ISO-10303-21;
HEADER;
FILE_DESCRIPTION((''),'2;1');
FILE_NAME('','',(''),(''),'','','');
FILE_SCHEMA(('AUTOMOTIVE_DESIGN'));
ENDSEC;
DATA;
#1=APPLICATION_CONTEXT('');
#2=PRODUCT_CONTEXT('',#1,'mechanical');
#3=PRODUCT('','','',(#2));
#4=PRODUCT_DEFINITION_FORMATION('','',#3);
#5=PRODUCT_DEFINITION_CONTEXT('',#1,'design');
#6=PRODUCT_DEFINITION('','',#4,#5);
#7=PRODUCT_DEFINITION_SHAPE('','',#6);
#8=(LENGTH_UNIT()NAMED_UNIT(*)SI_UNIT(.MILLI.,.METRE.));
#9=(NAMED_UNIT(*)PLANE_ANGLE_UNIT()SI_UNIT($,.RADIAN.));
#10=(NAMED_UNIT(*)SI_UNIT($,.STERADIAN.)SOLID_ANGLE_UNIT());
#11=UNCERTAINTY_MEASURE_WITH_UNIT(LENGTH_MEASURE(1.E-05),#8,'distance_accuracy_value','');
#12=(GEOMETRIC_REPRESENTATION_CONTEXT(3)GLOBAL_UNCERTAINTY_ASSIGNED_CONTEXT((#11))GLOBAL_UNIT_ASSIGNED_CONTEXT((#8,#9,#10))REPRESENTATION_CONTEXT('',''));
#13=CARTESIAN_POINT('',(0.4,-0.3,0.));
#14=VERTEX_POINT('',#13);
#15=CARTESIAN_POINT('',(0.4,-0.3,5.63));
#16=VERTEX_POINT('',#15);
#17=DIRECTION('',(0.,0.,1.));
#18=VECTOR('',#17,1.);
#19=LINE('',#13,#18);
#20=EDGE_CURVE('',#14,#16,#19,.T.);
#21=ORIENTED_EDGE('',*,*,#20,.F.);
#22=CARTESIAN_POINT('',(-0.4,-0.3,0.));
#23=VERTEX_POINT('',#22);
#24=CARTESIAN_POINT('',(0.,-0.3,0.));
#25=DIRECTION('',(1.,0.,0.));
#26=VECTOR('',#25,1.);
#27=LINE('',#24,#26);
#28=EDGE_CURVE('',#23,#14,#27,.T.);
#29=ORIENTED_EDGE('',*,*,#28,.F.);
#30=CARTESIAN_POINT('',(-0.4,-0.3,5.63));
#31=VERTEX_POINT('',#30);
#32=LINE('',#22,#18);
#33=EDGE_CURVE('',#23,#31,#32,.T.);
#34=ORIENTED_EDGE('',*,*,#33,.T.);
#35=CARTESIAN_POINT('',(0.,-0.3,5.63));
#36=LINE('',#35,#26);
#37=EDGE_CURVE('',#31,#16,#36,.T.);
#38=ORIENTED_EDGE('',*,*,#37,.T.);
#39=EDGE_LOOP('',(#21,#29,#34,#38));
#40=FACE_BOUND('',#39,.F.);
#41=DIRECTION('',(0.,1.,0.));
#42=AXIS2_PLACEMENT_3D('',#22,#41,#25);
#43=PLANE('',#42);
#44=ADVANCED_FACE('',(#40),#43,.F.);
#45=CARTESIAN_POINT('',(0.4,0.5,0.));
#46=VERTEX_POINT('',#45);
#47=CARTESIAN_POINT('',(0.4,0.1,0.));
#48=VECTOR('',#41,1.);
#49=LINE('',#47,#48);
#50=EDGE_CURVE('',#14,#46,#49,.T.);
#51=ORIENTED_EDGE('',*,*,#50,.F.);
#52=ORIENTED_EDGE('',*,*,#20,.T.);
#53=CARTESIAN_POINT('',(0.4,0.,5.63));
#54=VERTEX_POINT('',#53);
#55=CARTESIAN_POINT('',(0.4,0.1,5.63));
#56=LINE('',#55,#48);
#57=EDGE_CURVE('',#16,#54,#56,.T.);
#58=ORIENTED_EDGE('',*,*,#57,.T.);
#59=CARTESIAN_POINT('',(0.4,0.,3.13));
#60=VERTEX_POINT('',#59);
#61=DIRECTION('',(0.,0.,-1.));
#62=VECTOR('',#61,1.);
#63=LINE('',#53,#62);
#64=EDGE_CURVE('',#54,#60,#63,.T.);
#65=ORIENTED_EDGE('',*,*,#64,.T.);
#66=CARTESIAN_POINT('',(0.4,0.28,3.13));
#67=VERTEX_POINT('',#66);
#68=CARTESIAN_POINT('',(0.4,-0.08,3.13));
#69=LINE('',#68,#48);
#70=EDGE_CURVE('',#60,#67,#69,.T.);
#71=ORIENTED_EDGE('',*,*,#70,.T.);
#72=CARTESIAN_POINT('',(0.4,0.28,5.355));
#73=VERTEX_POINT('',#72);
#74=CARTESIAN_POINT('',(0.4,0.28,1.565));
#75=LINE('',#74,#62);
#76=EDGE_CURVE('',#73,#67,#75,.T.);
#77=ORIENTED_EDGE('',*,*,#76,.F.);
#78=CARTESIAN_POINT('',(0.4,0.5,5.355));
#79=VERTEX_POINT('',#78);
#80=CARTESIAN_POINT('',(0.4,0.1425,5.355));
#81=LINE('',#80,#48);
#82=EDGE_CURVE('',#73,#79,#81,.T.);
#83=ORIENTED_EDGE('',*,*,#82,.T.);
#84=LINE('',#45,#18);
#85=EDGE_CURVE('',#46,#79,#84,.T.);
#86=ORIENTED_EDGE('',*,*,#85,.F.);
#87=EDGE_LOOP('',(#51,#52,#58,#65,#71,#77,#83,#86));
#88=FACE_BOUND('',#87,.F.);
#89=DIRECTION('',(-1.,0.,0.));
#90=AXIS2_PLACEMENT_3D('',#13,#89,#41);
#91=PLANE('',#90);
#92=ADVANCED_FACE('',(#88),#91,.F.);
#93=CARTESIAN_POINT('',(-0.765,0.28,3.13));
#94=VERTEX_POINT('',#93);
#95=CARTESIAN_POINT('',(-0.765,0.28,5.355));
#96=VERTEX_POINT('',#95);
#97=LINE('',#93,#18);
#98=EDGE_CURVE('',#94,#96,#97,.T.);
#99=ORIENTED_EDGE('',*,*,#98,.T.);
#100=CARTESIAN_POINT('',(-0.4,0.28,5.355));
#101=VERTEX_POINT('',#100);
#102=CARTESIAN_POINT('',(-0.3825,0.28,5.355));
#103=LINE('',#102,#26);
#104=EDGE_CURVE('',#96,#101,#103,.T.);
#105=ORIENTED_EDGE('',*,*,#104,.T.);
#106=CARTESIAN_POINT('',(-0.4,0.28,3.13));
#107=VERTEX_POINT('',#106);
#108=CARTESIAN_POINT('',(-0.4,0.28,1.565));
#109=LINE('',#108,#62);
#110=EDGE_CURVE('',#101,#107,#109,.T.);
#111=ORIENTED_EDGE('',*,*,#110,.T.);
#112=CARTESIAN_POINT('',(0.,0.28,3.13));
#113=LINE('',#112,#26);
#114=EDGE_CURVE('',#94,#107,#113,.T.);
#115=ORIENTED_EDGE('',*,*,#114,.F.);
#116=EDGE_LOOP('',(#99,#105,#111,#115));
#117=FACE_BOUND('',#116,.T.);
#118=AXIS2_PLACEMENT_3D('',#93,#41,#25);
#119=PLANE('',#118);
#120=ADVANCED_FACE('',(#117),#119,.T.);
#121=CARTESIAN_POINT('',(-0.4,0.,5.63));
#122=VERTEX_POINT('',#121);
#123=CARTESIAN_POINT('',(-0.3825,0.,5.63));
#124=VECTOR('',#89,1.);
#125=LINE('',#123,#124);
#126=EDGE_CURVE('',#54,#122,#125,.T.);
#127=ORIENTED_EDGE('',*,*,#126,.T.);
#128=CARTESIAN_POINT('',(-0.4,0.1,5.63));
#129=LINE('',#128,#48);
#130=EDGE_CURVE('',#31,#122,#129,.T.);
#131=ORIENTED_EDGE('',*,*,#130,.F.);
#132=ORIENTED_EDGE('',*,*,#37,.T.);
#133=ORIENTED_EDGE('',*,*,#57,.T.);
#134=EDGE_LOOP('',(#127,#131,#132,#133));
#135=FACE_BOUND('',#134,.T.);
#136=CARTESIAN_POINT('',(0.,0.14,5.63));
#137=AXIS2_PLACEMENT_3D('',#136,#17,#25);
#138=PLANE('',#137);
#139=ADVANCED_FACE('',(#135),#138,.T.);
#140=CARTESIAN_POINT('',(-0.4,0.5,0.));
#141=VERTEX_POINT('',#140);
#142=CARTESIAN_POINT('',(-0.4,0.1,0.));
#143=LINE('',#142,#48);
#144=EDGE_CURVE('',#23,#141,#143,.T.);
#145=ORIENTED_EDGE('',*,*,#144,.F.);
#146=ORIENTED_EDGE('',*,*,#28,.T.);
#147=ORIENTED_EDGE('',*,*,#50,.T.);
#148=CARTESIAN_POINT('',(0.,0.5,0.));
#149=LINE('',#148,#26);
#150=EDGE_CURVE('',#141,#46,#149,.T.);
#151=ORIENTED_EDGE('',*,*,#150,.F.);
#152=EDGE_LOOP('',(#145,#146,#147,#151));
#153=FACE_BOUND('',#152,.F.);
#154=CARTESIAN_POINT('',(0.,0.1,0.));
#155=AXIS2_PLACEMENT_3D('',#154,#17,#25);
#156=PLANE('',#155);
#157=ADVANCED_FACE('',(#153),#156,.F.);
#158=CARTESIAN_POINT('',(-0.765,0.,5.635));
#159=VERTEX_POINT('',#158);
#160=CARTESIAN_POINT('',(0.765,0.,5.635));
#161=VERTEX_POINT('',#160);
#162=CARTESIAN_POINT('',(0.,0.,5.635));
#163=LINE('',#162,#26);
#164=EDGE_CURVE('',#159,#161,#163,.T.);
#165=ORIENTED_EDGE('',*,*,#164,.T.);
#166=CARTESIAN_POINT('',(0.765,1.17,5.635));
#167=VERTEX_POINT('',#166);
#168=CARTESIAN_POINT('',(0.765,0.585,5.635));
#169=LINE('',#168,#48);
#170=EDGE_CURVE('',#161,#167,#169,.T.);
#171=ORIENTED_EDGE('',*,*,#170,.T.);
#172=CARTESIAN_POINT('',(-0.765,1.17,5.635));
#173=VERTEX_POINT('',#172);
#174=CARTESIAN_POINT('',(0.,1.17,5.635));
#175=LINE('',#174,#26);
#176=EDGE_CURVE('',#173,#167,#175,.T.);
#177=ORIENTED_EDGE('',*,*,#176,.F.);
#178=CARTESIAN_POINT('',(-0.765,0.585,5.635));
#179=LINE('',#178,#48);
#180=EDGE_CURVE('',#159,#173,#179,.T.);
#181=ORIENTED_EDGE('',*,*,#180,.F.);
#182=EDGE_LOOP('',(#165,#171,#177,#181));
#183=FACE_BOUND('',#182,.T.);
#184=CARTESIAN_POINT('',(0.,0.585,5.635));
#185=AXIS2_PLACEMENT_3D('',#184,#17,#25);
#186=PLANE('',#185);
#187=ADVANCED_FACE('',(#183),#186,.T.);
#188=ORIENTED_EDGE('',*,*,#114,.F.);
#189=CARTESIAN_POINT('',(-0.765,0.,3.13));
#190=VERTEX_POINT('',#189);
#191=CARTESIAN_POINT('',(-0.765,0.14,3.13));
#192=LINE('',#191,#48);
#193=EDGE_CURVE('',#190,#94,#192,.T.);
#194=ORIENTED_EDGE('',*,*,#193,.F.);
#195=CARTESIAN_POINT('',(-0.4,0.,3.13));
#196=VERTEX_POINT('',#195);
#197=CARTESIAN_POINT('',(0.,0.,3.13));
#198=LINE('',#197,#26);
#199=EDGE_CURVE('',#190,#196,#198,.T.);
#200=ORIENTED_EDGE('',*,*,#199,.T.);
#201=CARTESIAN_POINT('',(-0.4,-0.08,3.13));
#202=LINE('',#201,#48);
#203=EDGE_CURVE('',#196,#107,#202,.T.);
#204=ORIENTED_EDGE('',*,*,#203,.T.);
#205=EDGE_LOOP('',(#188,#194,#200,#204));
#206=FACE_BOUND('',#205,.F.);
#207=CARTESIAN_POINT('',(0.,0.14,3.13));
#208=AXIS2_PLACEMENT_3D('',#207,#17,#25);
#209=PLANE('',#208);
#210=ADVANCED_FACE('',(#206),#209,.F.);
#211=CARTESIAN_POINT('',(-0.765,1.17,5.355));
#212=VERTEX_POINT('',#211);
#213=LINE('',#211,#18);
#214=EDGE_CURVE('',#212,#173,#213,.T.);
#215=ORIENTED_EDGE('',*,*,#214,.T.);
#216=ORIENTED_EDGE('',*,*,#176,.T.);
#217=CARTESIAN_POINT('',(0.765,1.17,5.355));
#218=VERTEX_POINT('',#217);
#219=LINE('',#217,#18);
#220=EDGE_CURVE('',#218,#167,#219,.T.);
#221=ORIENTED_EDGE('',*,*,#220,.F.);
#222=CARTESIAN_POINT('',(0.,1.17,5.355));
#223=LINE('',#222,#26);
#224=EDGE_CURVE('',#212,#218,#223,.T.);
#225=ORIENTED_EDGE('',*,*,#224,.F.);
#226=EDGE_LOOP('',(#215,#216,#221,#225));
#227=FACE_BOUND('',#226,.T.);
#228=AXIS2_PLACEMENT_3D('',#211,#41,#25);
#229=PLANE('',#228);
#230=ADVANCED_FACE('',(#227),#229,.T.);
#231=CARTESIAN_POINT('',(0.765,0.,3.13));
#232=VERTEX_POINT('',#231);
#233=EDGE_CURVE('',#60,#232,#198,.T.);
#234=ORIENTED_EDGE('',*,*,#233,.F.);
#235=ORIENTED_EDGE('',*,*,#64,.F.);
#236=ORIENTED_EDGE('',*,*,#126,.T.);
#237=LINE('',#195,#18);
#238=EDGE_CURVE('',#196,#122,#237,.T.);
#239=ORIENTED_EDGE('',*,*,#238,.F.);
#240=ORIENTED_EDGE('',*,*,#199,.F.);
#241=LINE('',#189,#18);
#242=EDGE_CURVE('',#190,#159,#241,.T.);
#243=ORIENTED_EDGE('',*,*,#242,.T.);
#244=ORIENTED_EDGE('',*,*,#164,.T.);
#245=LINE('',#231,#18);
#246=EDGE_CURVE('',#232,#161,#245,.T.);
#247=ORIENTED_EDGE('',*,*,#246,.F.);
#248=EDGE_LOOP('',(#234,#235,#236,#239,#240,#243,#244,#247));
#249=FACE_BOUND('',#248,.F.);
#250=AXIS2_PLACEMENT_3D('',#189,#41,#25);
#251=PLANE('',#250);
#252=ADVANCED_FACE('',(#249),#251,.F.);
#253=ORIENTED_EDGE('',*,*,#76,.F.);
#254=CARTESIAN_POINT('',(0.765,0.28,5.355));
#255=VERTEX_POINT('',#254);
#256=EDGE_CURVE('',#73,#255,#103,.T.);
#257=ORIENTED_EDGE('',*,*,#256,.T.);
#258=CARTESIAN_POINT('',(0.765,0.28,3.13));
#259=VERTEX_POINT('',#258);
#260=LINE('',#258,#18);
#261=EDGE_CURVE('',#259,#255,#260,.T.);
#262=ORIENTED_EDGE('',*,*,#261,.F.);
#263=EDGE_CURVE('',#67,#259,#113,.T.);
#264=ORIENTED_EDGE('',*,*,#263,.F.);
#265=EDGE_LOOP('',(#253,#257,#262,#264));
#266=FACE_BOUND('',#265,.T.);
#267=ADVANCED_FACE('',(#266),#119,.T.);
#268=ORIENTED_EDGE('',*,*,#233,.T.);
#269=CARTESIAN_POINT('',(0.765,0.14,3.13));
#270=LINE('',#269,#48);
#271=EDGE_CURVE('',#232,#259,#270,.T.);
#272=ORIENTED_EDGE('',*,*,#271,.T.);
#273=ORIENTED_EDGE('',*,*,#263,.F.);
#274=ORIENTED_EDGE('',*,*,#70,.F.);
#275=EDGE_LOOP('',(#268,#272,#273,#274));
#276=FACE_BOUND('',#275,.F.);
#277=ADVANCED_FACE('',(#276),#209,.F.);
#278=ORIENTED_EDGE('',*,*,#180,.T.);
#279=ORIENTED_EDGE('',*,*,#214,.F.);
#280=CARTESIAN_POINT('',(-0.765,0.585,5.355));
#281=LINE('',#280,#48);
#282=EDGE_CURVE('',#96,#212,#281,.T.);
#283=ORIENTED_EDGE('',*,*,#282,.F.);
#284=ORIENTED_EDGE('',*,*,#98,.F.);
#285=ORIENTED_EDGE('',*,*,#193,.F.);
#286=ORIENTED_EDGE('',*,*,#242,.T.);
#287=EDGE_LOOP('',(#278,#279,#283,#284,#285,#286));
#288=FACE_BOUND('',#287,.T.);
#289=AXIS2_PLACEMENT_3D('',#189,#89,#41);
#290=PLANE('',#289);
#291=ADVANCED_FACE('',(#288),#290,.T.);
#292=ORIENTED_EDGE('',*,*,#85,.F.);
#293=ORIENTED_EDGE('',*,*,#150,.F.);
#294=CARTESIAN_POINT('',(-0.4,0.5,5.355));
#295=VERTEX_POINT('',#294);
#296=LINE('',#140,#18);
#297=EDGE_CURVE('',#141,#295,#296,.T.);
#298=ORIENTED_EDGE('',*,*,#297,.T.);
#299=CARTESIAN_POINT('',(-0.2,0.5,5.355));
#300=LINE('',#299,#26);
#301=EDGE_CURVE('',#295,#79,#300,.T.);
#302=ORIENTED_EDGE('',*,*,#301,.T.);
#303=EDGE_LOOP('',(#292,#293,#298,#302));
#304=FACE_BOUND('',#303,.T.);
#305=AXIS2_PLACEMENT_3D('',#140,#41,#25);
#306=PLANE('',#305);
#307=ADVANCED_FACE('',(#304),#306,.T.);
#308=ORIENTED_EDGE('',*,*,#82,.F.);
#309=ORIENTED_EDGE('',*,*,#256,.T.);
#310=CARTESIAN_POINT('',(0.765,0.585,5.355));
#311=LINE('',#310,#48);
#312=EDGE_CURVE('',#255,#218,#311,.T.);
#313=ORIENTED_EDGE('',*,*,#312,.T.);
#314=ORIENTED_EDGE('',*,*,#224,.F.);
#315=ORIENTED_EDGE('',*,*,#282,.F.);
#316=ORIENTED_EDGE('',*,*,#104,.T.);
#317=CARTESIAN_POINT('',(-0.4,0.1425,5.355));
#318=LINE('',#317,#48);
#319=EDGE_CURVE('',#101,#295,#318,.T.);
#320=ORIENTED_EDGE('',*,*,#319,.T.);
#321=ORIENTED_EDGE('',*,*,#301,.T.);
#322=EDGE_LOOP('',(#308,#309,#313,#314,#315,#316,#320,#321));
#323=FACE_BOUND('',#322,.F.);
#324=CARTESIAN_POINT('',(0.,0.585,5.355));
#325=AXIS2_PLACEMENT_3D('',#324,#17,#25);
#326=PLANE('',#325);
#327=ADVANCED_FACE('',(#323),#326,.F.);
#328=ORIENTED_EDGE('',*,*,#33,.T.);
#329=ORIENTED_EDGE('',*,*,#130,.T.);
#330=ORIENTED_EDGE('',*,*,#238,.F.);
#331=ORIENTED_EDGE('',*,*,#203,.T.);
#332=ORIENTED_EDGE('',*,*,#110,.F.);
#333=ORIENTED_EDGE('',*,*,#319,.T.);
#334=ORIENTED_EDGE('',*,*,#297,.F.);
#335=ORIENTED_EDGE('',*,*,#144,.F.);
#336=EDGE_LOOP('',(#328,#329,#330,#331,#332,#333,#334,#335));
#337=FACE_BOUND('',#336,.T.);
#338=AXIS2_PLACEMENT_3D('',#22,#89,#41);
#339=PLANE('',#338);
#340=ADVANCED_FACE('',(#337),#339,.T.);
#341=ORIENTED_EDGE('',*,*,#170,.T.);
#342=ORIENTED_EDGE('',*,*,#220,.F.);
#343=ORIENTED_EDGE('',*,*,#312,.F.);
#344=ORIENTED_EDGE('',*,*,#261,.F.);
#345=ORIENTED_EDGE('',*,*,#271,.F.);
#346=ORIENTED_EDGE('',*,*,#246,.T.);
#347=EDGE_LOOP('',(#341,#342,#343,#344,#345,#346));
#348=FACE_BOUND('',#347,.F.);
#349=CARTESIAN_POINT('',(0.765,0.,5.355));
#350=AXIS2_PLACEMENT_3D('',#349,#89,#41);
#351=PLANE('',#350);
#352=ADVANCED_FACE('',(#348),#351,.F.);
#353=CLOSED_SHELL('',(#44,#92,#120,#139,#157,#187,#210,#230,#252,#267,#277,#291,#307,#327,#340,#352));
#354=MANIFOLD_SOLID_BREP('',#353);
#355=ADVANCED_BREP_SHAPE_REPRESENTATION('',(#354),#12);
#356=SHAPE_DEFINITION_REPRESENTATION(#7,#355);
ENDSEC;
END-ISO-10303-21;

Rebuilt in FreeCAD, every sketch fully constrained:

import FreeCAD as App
import Part
import Sketcher

V = App.Vector


def add_polygon(sketch, points):
    """Adds a closed chain of lines whose ends are joined by coincident constraints."""
    first, n = sketch.GeometryCount, len(points)
    for a, b in zip(points, points[1:] + points[:1]):
        sketch.addGeometry(Part.LineSegment(App.Vector(*a, 0), App.Vector(*b, 0)), False)
    for i in range(n):
        sketch.addConstraint(Sketcher.Constraint("Coincident", first + i, 2, first + (i + 1) % n, 1))

doc = App.newDocument("Part")
body = doc.addObject("PartDesign::Body", "Body")

sketch1 = body.newObject("Sketcher::SketchObject", "Sketch")
sketch1.AttachmentSupport = (doc.getObject("XY_Plane"), [""])
sketch1.MapMode = "FlatFace"
sketch1.AttachmentOffset = App.Placement(V(0, 0, 3.13), App.Rotation())
add_polygon(sketch1, [(-0.765, 0.28), (-0.765, 0), (0.765, 0), (0.765, 0.28)])
sketch1.addConstraint(Sketcher.Constraint("Vertical", 0))
sketch1.addConstraint(Sketcher.Constraint("Horizontal", 1))
sketch1.addConstraint(Sketcher.Constraint("Vertical", 2))
sketch1.addConstraint(Sketcher.Constraint("Horizontal", 3))
sketch1.addConstraint(Sketcher.Constraint("Symmetric", 0, 2, 1, 2, -1, 1))
sketch1.addConstraint(Sketcher.Constraint("DistanceX", 1, 1, 1, 2, 1.53))
sketch1.addConstraint(Sketcher.Constraint("DistanceY", 0, 2, 0, 1, 0.28))
pad1 = body.newObject("PartDesign::Pad", "Pad")
pad1.Profile = sketch1
pad1.Length = 2.5
body2 = doc.addObject("PartDesign::Body", "Body001")

sketch2 = body2.newObject("Sketcher::SketchObject", "Sketch001")
sketch2.AttachmentSupport = (doc.getObject("XY_Plane001"), [""])
sketch2.MapMode = "FlatFace"
sketch2.AttachmentOffset = App.Placement(V(0, 0, 5.355), App.Rotation())
add_polygon(sketch2, [(-0.765, 1.17), (-0.765, 0), (0.765, 0), (0.765, 1.17)])
sketch2.addConstraint(Sketcher.Constraint("Vertical", 0))
sketch2.addConstraint(Sketcher.Constraint("Horizontal", 1))
sketch2.addConstraint(Sketcher.Constraint("Vertical", 2))
sketch2.addConstraint(Sketcher.Constraint("Horizontal", 3))
sketch2.addConstraint(Sketcher.Constraint("Symmetric", 0, 2, 1, 2, -1, 1))
sketch2.addConstraint(Sketcher.Constraint("DistanceX", 1, 1, 1, 2, 1.53))
sketch2.addConstraint(Sketcher.Constraint("DistanceY", 0, 2, 0, 1, 1.17))
pad2 = body2.newObject("PartDesign::Pad", "Pad001")
pad2.Profile = sketch2
pad2.Length = 0.28
body3 = doc.addObject("PartDesign::Body", "Body002")

sketch3 = body3.newObject("Sketcher::SketchObject", "Sketch002")
sketch3.AttachmentSupport = (doc.getObject("XY_Plane002"), [""])
sketch3.MapMode = "FlatFace"
add_polygon(sketch3, [(-0.4, 0.5), (-0.4, -0.3), (0.4, -0.3), (0.4, 0.5)])
sketch3.addConstraint(Sketcher.Constraint("Vertical", 0))
sketch3.addConstraint(Sketcher.Constraint("Horizontal", 1))
sketch3.addConstraint(Sketcher.Constraint("Vertical", 2))
sketch3.addConstraint(Sketcher.Constraint("Horizontal", 3))
sketch3.addConstraint(Sketcher.Constraint("Equal", 3, 0))
sketch3.addConstraint(Sketcher.Constraint("DistanceX", 1, 1, 1, 2, 0.8))
sketch3.addConstraint(Sketcher.Constraint("DistanceX", 0, 2, -1, 1, 0.4))
sketch3.addConstraint(Sketcher.Constraint("DistanceY", 0, 2, -1, 1, 0.3))
pad3 = body3.newObject("PartDesign::Pad", "Pad002")
pad3.Profile = sketch3
pad3.Length = 5.63
doc.recompute()

boolean = body3.newObject("PartDesign::Boolean", "Boolean")
boolean.Type = "Fuse"
boolean.addObjects([body])
doc.recompute()

boolean2 = body3.newObject("PartDesign::Boolean", "Boolean001")
boolean2.Type = "Fuse"
boolean2.addObjects([body2])

doc.recompute()
